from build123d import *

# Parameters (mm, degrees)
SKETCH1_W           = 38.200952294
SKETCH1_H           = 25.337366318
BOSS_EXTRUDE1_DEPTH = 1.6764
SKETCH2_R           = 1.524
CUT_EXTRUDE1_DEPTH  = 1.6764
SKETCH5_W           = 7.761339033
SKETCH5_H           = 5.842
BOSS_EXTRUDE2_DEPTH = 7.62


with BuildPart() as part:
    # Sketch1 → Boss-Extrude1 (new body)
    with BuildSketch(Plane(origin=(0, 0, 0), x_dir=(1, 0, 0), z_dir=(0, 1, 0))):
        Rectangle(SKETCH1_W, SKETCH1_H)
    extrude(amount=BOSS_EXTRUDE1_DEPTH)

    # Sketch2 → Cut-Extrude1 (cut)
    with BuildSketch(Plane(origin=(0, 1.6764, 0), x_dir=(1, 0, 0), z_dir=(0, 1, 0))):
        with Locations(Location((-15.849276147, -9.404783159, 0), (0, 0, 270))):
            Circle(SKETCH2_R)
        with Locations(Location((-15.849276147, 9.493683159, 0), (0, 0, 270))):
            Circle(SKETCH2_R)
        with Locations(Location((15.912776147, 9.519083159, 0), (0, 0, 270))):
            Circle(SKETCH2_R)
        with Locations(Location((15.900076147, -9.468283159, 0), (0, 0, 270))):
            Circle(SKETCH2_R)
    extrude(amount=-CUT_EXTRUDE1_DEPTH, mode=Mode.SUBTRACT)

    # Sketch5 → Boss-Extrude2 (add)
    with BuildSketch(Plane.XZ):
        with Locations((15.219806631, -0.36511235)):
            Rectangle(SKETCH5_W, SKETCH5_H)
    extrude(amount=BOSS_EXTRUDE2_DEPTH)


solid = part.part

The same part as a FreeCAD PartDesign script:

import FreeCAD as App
import Part
import Sketcher
from FreeCAD import Vector
Q = App.Units.Quantity


def add_polygon(sketch, points):
    """Adds a closed chain of lines whose ends are joined by coincident constraints."""
    first, n = sketch.GeometryCount, len(points)
    for a, b in zip(points, points[1:] + points[:1]):
        sketch.addGeometry(Part.LineSegment(App.Vector(*a, 0), App.Vector(*b, 0)), False)
    for i in range(n):
        sketch.addConstraint(Sketcher.Constraint("Coincident", first + i, 2, first + (i + 1) % n, 1))

doc = App.newDocument("Part")
params = doc.addObject("Spreadsheet::Sheet", "Params")
for row, (alias, value) in enumerate([
    ("pad1_length", "0.066 in"),
    ("sketch2_diameter", "0.12 in"),
    ("pocket1_length", "0.066 in"),
    ("sketch3_height", "0.23 in"),
    ("pad2_length", "0.3 in"),
], start=1):
    params.set(f"A{row}", alias)
    params.set(f"B{row}", "=" + value)
    params.setAlias(f"B{row}", alias)

body = doc.addObject("PartDesign::Body", "Body")

# Sketch on XZ plane
sketch1 = doc.addObject("Sketcher::SketchObject", "Sketch")
body.addObject(sketch1)
sketch1.AttachmentSupport = (doc.XZ_Plane, [""])
sketch1.MapMode = "FlatFace"
add_polygon(sketch1, [(-19, -13), (-19, 13), (19, 13), (19, -13)])  # lines 0-3
sketch1.addConstraint(Sketcher.Constraint("Vertical", 0))
sketch1.addConstraint(Sketcher.Constraint("Horizontal", 1))
sketch1.addConstraint(Sketcher.Constraint("Vertical", 2))
sketch1.addConstraint(Sketcher.Constraint("Horizontal", 3))
sketch1.addConstraint(Sketcher.Constraint("Symmetric", 0, 2, 2, 2, -1, 1))
sketch1.addConstraint(Sketcher.Constraint("DistanceX", 1, 1, 1, 2, 38.200952))
sketch1.addConstraint(Sketcher.Constraint("DistanceY", 0, 1, 0, 2, 25.337366))
pad1 = doc.addObject("PartDesign::Pad", "Pad")
body.addObject(pad1)
pad1.Profile = sketch1
pad1.setExpression("Length", "Params.pad1_length")
pad1.Reversed = True

# Sketch on XZ plane
sketch2 = doc.addObject("Sketcher::SketchObject", "Sketch001")
body.addObject(sketch2)
sketch2.AttachmentSupport = (doc.XZ_Plane, [""])
sketch2.MapMode = "FlatFace"
sketch2.AttachmentOffset = App.Placement(Vector(0, 0, -0.066 * 25.4), App.Rotation())
sketch2.addGeometry(Part.Circle(Vector(-15.8, 9.4, 0), Vector(0, 0, 1), 1.5), False)
sketch2.addGeometry(Part.Circle(Vector(-15.8, -9.5, 0), Vector(0, 0, 1), 1.5), False)
sketch2.addGeometry(Part.Circle(Vector(15.9, -9.5, 0), Vector(0, 0, 1), 1.5), False)
sketch2.addGeometry(Part.Circle(Vector(15.9, 9.5, 0), Vector(0, 0, 1), 1.5), False)
sketch2.addConstraint(Sketcher.Constraint("Equal", 0, 1))
sketch2.addConstraint(Sketcher.Constraint("Equal", 1, 2))
sketch2.addConstraint(Sketcher.Constraint("Equal", 2, 3))
sketch2.addConstraint(Sketcher.Constraint("Vertical", 0, 3, 1, 3))
sketch2.addConstraint(Sketcher.Constraint("Diameter", 0, Q("0.12 in")))
sketch2.addConstraint(Sketcher.Constraint("DistanceY", 2, 3, 1, 3, Q("0.001 in")))
sketch2.addConstraint(Sketcher.Constraint("DistanceX", 3, 3, 2, 3, Q("0.0005 in")))
sketch2.addConstraint(Sketcher.Constraint("DistanceY", 0, 3, 3, 3, Q("0.0025 in")))
sketch2.addConstraint(Sketcher.Constraint("DistanceX", 0, 3, -1, 1, 15.849276))
sketch2.addConstraint(Sketcher.Constraint("DistanceY", -1, 1, 0, 3, 9.404783))
sketch2.addConstraint(Sketcher.Constraint("DistanceY", 1, 3, -1, 1, 9.493683))
sketch2.addConstraint(Sketcher.Constraint("DistanceX", -1, 1, 2, 3, 15.912776))
sketch2.setExpression("Constraints[4]", "Params.sketch2_diameter")
pocket1 = doc.addObject("PartDesign::Pocket", "Pocket")
body.addObject(pocket1)
pocket1.Profile = sketch2
pocket1.setExpression("Length", "Params.pocket1_length")
pocket1.Reversed = True

# Sketch on XZ plane
sketch3 = doc.addObject("Sketcher::SketchObject", "Sketch002")
body.addObject(sketch3)
sketch3.AttachmentSupport = (doc.XZ_Plane, [""])
sketch3.MapMode = "FlatFace"
add_polygon(sketch3, [(11, 3), (11, -3), (19, -3), (19, 3)])  # lines 0-3
sketch3.addConstraint(Sketcher.Constraint("Vertical", 0))
sketch3.addConstraint(Sketcher.Constraint("Horizontal", 1))
sketch3.addConstraint(Sketcher.Constraint("Vertical", 2))
sketch3.addConstraint(Sketcher.Constraint("Horizontal", 3))
sketch3.addConstraint(Sketcher.Constraint("DistanceY", 0, 2, 0, 1, Q("0.23 in")))
sketch3.addConstraint(Sketcher.Constraint("DistanceX", 1, 1, 1, 2, 7.761339))
sketch3.addConstraint(Sketcher.Constraint("DistanceX", -1, 1, 0, 2, 11.339137))
sketch3.addConstraint(Sketcher.Constraint("DistanceY", 0, 2, -1, 1, 3.286112))
sketch3.setExpression("Constraints[8]", "Params.sketch3_height")
pad2 = doc.addObject("PartDesign::Pad", "Pad001")
body.addObject(pad2)
pad2.Profile = sketch3
pad2.setExpression("Length", "Params.pad2_length")

doc.recompute()
